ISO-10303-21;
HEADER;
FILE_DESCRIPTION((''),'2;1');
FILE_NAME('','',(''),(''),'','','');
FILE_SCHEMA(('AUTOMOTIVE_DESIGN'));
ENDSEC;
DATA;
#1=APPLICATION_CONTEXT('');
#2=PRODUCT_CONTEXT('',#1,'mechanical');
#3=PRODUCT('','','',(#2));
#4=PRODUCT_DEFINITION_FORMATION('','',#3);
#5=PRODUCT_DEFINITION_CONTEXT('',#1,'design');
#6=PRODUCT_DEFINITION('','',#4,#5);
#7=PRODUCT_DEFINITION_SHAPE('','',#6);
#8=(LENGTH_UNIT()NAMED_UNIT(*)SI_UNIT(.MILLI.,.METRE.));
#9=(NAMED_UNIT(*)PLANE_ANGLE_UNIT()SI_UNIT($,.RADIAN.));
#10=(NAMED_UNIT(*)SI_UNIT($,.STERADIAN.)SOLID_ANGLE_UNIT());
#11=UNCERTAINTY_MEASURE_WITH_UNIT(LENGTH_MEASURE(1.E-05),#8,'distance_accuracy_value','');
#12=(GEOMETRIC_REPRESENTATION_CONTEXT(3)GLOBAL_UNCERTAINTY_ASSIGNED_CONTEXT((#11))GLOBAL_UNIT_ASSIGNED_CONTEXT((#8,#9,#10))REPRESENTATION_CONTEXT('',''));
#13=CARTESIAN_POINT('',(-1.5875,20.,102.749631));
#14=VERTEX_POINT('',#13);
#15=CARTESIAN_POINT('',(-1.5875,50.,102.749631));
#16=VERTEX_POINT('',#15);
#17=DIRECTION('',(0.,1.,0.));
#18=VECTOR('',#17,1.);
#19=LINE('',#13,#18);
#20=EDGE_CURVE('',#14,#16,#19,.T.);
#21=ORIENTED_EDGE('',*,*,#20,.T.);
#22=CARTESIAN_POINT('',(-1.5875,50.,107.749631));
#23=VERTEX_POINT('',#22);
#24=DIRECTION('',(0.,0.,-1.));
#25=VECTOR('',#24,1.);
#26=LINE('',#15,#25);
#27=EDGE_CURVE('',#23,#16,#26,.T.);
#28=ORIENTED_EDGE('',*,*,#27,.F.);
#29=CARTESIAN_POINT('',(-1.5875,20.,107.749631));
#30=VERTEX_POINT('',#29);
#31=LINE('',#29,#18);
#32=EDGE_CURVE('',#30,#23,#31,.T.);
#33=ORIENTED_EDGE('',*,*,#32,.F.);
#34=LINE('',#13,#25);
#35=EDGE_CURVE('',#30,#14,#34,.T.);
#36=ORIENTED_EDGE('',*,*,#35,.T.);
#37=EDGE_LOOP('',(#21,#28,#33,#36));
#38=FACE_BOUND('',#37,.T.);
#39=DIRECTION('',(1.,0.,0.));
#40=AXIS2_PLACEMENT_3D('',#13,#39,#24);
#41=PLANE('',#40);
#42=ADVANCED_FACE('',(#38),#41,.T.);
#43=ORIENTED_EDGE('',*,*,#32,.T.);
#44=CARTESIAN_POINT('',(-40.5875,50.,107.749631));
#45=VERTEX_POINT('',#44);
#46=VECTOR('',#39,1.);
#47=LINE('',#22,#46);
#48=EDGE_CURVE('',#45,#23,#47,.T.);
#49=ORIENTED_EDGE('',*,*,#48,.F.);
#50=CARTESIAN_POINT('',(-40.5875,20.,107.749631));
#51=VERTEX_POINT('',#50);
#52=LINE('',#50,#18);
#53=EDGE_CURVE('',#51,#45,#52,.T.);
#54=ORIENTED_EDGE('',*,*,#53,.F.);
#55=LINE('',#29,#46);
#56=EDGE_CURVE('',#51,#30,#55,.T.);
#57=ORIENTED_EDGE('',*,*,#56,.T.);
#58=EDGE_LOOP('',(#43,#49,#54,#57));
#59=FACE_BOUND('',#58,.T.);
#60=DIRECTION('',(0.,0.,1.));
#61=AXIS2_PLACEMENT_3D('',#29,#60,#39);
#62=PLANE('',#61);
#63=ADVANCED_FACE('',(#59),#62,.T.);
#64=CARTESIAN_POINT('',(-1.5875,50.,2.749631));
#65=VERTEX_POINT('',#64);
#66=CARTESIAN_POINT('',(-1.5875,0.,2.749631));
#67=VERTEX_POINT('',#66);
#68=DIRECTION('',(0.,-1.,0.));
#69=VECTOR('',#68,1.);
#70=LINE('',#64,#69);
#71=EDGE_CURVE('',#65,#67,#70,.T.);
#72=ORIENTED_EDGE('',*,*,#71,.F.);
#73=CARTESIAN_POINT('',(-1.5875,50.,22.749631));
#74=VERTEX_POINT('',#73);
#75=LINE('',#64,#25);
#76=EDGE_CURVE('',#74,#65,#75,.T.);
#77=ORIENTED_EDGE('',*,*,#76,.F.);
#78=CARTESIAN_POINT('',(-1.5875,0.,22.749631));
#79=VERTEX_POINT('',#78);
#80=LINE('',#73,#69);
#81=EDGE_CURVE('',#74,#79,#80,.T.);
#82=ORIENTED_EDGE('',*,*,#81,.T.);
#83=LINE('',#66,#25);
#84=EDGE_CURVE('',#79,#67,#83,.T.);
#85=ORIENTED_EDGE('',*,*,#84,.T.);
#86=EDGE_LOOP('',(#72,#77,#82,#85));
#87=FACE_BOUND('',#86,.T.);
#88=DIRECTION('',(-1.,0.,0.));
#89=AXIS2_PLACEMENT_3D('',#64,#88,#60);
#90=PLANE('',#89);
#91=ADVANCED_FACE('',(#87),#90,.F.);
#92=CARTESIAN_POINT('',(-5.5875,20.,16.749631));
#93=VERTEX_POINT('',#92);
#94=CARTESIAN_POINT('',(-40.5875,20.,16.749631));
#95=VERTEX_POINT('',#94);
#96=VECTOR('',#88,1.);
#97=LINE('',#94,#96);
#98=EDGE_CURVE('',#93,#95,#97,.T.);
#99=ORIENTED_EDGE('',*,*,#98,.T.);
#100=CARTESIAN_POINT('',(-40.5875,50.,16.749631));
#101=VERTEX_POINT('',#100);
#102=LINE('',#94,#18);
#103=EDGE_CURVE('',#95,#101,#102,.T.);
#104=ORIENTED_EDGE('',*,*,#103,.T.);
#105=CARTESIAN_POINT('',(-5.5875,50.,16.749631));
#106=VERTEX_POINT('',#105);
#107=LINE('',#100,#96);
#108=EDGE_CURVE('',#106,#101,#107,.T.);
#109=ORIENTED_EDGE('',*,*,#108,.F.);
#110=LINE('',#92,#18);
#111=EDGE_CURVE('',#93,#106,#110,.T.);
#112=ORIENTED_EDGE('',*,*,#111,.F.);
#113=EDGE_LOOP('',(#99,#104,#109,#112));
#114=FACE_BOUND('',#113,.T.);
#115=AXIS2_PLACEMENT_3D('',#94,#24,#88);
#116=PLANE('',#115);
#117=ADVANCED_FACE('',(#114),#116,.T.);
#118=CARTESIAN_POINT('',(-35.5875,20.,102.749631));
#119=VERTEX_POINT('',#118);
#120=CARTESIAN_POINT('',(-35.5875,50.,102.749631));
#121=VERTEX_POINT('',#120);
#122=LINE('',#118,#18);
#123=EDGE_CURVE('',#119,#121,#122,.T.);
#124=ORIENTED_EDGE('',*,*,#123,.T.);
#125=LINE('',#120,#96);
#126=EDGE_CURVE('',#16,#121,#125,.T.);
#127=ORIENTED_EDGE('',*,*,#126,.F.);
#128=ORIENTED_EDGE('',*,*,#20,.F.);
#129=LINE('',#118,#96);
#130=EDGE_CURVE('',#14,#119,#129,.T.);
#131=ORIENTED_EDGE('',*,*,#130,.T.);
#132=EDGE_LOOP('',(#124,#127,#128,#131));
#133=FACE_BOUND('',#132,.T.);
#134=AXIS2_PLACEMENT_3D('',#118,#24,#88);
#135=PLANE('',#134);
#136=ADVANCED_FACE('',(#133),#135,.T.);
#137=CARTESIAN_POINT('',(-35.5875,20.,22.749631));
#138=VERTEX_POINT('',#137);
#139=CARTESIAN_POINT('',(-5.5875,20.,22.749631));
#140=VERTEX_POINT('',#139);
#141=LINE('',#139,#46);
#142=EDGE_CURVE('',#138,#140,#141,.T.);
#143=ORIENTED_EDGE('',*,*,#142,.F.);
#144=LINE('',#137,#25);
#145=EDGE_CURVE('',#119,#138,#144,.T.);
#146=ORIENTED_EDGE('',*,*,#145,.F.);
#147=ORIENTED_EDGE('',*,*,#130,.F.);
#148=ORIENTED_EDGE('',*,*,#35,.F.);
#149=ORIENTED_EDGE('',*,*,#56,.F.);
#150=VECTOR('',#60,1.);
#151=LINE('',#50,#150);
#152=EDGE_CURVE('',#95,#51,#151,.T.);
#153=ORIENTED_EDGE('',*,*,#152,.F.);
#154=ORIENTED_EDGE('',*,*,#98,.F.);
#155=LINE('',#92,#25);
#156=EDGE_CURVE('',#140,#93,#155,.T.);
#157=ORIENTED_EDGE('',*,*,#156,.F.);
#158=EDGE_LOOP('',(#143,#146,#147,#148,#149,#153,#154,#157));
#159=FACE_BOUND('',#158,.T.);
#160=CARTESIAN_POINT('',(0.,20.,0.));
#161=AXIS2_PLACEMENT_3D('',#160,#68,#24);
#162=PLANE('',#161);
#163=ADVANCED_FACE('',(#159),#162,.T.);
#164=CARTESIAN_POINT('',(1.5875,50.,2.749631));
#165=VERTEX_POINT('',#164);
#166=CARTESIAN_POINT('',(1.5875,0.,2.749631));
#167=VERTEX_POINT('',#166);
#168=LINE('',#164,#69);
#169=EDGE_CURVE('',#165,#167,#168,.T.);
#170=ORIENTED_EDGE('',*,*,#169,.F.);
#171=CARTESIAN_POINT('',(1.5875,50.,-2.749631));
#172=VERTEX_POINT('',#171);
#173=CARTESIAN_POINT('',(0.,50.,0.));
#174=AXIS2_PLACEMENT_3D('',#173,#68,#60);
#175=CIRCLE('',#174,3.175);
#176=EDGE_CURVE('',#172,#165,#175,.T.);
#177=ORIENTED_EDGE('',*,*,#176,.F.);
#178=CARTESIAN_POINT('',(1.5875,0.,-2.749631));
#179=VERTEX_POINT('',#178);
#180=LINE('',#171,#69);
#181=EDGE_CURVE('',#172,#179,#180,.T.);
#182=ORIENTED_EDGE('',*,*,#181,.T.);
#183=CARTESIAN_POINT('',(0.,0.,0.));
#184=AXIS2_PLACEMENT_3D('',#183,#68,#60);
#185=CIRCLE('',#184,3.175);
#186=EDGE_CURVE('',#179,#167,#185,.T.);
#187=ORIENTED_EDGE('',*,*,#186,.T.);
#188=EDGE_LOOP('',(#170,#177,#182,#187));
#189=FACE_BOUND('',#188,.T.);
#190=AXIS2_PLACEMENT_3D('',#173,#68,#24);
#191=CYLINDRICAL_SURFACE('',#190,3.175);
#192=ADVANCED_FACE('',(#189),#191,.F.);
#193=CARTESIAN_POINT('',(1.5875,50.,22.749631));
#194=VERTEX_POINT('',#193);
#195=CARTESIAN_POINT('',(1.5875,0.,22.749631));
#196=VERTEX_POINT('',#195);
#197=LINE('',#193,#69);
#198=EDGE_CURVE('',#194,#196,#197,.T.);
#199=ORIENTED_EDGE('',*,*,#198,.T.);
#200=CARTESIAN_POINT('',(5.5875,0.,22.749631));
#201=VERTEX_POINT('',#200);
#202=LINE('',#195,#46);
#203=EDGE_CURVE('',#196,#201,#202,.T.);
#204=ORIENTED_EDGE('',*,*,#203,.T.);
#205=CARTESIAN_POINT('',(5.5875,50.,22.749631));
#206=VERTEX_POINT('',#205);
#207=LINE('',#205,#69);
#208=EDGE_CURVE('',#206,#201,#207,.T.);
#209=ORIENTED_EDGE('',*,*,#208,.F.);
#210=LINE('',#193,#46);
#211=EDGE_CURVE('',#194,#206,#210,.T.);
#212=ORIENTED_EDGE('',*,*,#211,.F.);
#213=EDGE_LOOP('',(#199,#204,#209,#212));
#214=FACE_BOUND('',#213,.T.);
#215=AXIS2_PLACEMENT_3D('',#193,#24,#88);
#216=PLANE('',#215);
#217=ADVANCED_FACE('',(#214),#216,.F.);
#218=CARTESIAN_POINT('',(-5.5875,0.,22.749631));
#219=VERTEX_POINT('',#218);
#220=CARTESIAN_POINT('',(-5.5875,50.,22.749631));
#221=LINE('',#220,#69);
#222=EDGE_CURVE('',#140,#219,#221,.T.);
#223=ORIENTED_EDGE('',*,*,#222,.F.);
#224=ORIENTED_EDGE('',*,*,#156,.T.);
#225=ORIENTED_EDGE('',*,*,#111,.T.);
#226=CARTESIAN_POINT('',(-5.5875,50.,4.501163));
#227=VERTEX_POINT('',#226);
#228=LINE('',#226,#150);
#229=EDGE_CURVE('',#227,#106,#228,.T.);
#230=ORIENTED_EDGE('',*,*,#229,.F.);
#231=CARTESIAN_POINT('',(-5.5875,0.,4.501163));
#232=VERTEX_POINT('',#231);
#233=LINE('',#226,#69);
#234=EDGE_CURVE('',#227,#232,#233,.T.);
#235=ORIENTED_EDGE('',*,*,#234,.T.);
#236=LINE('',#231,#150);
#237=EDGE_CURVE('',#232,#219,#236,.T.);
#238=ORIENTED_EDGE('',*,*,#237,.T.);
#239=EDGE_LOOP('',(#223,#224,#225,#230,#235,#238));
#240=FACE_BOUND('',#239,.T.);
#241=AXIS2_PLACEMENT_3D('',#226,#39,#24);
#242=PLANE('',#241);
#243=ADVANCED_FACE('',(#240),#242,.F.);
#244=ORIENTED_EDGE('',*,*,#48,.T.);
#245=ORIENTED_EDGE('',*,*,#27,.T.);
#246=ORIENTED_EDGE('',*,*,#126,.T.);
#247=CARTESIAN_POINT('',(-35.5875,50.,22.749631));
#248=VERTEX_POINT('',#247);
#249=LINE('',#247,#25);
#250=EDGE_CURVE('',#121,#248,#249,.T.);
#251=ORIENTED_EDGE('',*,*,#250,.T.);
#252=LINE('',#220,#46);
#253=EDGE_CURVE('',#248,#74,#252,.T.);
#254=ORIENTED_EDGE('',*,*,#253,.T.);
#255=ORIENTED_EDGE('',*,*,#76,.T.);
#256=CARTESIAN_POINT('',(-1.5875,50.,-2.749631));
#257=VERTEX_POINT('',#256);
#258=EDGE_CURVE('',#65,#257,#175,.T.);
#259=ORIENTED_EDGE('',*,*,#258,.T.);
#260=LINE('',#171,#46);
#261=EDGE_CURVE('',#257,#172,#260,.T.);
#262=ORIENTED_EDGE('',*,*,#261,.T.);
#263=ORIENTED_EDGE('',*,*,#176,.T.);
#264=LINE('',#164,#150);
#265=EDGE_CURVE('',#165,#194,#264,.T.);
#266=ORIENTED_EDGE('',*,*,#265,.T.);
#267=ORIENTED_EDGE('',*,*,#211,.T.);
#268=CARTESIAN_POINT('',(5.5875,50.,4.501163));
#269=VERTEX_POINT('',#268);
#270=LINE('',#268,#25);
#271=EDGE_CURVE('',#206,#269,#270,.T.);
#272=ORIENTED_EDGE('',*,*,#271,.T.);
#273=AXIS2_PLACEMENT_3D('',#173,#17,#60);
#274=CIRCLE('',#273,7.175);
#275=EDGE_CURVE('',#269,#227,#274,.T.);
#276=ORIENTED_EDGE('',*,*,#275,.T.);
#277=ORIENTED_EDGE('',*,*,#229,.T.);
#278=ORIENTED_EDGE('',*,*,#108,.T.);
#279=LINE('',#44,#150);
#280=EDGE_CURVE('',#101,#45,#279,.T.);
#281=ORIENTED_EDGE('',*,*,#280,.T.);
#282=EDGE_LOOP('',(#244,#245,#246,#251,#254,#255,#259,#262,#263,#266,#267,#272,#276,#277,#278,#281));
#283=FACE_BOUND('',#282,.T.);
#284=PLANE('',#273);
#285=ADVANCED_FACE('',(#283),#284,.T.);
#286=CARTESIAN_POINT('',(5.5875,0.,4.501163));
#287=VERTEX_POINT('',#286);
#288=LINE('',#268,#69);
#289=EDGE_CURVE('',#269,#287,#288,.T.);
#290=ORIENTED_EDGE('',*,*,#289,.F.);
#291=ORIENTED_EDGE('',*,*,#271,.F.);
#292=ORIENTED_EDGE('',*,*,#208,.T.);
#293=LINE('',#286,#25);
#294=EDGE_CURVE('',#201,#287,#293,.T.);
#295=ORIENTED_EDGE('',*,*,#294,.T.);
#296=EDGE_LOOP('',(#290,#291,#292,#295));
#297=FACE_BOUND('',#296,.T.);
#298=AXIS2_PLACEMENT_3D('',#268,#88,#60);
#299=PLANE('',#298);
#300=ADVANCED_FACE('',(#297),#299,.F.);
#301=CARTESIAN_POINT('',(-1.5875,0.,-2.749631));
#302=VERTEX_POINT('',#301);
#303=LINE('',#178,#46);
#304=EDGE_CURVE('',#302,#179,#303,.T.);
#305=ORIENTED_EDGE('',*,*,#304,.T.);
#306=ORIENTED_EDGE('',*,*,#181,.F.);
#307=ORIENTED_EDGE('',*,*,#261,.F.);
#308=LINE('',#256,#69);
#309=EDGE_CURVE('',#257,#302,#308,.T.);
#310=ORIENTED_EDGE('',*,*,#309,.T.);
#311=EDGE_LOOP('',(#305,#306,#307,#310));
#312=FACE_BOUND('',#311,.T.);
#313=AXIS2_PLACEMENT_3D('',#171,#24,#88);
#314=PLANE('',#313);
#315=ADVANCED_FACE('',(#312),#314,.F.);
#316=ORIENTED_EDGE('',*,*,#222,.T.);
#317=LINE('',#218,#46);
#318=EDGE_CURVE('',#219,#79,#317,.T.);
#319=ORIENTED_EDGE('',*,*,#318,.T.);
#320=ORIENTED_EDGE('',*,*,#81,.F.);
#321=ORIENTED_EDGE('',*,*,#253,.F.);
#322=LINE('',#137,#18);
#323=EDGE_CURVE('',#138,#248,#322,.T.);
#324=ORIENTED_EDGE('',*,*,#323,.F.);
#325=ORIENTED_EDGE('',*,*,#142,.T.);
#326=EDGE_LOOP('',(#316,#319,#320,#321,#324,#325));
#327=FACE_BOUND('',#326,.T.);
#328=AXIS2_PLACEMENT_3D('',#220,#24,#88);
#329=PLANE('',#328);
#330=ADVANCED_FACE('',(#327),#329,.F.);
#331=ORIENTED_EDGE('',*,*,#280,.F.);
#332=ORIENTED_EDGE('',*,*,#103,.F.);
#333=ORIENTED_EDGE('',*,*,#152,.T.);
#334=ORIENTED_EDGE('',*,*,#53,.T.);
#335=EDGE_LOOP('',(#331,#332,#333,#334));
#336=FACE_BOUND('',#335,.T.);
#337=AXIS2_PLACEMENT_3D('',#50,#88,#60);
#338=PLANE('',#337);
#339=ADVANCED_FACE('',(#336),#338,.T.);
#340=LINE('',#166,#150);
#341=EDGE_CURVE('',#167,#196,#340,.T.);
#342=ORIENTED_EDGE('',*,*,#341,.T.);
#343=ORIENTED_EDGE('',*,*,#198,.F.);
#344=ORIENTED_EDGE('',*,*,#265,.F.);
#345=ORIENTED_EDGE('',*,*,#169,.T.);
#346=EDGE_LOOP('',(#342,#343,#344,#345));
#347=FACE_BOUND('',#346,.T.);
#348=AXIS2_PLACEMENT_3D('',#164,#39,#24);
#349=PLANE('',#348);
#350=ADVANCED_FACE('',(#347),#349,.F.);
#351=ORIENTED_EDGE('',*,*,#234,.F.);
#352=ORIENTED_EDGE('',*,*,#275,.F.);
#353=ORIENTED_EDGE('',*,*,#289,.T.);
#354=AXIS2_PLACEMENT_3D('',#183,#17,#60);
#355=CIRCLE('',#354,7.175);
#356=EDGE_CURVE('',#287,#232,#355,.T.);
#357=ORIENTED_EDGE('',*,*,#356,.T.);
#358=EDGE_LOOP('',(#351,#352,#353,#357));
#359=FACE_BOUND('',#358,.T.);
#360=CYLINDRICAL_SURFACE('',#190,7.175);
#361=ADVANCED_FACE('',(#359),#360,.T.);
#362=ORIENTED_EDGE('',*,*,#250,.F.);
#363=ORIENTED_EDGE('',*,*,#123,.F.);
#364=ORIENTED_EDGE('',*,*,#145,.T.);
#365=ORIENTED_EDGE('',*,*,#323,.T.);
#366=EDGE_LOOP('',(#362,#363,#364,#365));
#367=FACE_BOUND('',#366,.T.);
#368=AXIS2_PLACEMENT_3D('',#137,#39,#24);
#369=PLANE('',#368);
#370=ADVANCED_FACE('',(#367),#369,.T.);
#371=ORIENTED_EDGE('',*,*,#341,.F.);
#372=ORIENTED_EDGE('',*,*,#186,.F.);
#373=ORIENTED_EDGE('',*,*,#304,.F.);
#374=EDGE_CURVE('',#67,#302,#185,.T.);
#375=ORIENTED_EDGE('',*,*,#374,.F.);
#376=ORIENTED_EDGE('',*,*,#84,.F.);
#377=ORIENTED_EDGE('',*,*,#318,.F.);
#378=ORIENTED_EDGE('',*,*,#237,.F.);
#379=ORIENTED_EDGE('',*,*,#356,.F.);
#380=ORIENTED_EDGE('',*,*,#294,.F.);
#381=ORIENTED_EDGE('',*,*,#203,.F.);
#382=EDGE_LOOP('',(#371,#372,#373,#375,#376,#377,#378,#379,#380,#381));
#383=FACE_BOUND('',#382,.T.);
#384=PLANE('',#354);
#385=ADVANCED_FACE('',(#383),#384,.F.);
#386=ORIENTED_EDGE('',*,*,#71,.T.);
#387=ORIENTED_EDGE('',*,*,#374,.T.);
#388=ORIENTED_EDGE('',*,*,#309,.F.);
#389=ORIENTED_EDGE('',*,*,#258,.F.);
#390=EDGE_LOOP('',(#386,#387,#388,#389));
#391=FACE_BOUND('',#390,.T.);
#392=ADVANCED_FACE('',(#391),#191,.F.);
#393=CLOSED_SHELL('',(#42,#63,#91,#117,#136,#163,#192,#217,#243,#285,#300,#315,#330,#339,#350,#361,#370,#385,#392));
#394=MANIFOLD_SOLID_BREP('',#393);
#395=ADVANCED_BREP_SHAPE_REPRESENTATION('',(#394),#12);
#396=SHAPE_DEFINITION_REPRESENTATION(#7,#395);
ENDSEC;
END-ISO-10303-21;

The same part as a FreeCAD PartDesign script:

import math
import FreeCAD as App
import Part
import Sketcher
from FreeCAD import Vector

doc = App.newDocument("Part")
body = doc.addObject("PartDesign::Body", "Body")

sketch1 = body.newObject("Sketcher::SketchObject", "Sketch")
sketch1.AttachmentSupport = (doc.getObject("XZ_Plane"), [""])
sketch1.MapMode = "FlatFace"
sketch1.addGeometry(Part.LineSegment(Vector(-1.6, 22.7, 0), Vector(-1.6, 2.7, 0)), False)
sketch1.addGeometry(Part.ArcOfCircle(Part.Circle(Vector(0, 0, 0), Vector(0, 0, 1), 3.2), math.radians(120), math.radians(240)), False)
sketch1.addGeometry(Part.LineSegment(Vector(-1.6, -2.7, 0), Vector(1.6, -2.7, 0)), False)
sketch1.addGeometry(Part.ArcOfCircle(Part.Circle(Vector(0, 0, 0), Vector(0, 0, 1), 3.2), math.radians(-60), math.radians(60)), False)
sketch1.addGeometry(Part.LineSegment(Vector(1.6, 2.7, 0), Vector(1.6, 22.7, 0)), False)
sketch1.addGeometry(Part.LineSegment(Vector(1.6, 22.7, 0), Vector(5.6, 22.7, 0)), False)
sketch1.addGeometry(Part.LineSegment(Vector(5.6, 22.7, 0), Vector(5.6, 4.5, 0)), False)
sketch1.addGeometry(Part.ArcOfCircle(Part.Circle(Vector(0, 0, 0), Vector(0, 0, 1), 7.2), math.radians(141), math.radians(399)), False)
sketch1.addGeometry(Part.LineSegment(Vector(-5.6, 4.5, 0), Vector(-5.6, 22.7, 0)), False)
sketch1.addGeometry(Part.LineSegment(Vector(-5.6, 22.7, 0), Vector(-1.6, 22.7, 0)), False)
sketch1.addConstraint(Sketcher.Constraint("Coincident", 0, 2, 1, 1))
sketch1.addConstraint(Sketcher.Constraint("Coincident", 1, 2, 2, 1))
sketch1.addConstraint(Sketcher.Constraint("Coincident", 2, 2, 3, 1))
sketch1.addConstraint(Sketcher.Constraint("Coincident", 3, 2, 4, 1))
sketch1.addConstraint(Sketcher.Constraint("Coincident", 4, 2, 5, 1))
sketch1.addConstraint(Sketcher.Constraint("Coincident", 5, 2, 6, 1))
sketch1.addConstraint(Sketcher.Constraint("Coincident", 6, 2, 7, 2))
sketch1.addConstraint(Sketcher.Constraint("Coincident", 7, 1, 8, 1))
sketch1.addConstraint(Sketcher.Constraint("Coincident", 8, 2, 9, 1))
sketch1.addConstraint(Sketcher.Constraint("Coincident", 9, 2, 0, 1))
sketch1.addConstraint(Sketcher.Constraint("Vertical", 0))
sketch1.addConstraint(Sketcher.Constraint("Horizontal", 2))
sketch1.addConstraint(Sketcher.Constraint("Vertical", 4))
sketch1.addConstraint(Sketcher.Constraint("Horizontal", 5))
sketch1.addConstraint(Sketcher.Constraint("Vertical", 6))
sketch1.addConstraint(Sketcher.Constraint("Vertical", 8))
sketch1.addConstraint(Sketcher.Constraint("Horizontal", 9))
sketch1.addConstraint(Sketcher.Constraint("Coincident", 1, 3, -1, 1))
sketch1.addConstraint(Sketcher.Constraint("Coincident", 3, 3, -1, 1))
sketch1.addConstraint(Sketcher.Constraint("Coincident", 7, 3, -1, 1))
sketch1.addConstraint(Sketcher.Constraint("Equal", 1, 3))
sketch1.addConstraint(Sketcher.Constraint("Symmetric", 5, 2, 8, 2, -2))
sketch1.addConstraint(Sketcher.Constraint("Horizontal", 0, 2, 3, 2))
sketch1.addConstraint(Sketcher.Constraint("Vertical", 0, 2, 1, 2))
sketch1.addConstraint(Sketcher.Constraint("DistanceX", 5, 1, 5, 2, 4.0))
sketch1.addConstraint(Sketcher.Constraint("DistanceY", 0, 2, 0, 1, 20.0))
sketch1.addConstraint(Sketcher.Constraint("Radius", 1, 3.175))
sketch1.addConstraint(Sketcher.Constraint("Radius", 7, 7.175))
sketch1.addConstraint(Sketcher.Constraint("DistanceX", 2, 1, 2, 2, 3.175))
pad1 = body.newObject("PartDesign::Pad", "Pad")
pad1.Profile = sketch1
pad1.Length = 50
pad1.Reversed = True

sketch2 = body.newObject("Sketcher::SketchObject", "Sketch001")
sketch2.AttachmentSupport = (doc.getObject("XZ_Plane"), [""])
sketch2.MapMode = "FlatFace"
sketch2.AttachmentOffset = App.Placement(Vector(0, 0, -50), App.Rotation())
sketch2.addGeometry(Part.LineSegment(Vector(-36, 23, 0), Vector(-6, 23, 0)), False)
sketch2.addGeometry(Part.LineSegment(Vector(-6, 23, 0), Vector(-6, 17, 0)), False)
sketch2.addGeometry(Part.LineSegment(Vector(-6, 17, 0), Vector(-41, 17, 0)), False)
sketch2.addGeometry(Part.LineSegment(Vector(-41, 17, 0), Vector(-41, 108, 0)), False)
sketch2.addGeometry(Part.LineSegment(Vector(-41, 108, 0), Vector(-2, 108, 0)), False)
sketch2.addGeometry(Part.LineSegment(Vector(-2, 108, 0), Vector(-2, 103, 0)), False)
sketch2.addGeometry(Part.LineSegment(Vector(-2, 103, 0), Vector(-36, 103, 0)), False)
sketch2.addGeometry(Part.LineSegment(Vector(-36, 103, 0), Vector(-36, 23, 0)), False)
sketch2.addConstraint(Sketcher.Constraint("Coincident", 0, 2, 1, 1))
sketch2.addConstraint(Sketcher.Constraint("Coincident", 1, 2, 2, 1))
sketch2.addConstraint(Sketcher.Constraint("Coincident", 2, 2, 3, 1))
sketch2.addConstraint(Sketcher.Constraint("Coincident", 3, 2, 4, 1))
sketch2.addConstraint(Sketcher.Constraint("Coincident", 4, 2, 5, 1))
sketch2.addConstraint(Sketcher.Constraint("Coincident", 5, 2, 6, 1))
sketch2.addConstraint(Sketcher.Constraint("Coincident", 6, 2, 7, 1))
sketch2.addConstraint(Sketcher.Constraint("Coincident", 7, 2, 0, 1))
sketch2.addConstraint(Sketcher.Constraint("Horizontal", 0))
sketch2.addConstraint(Sketcher.Constraint("Vertical", 1))
sketch2.addConstraint(Sketcher.Constraint("Horizontal", 2))
sketch2.addConstraint(Sketcher.Constraint("Vertical", 3))
sketch2.addConstraint(Sketcher.Constraint("Horizontal", 4))
sketch2.addConstraint(Sketcher.Constraint("Vertical", 5))
sketch2.addConstraint(Sketcher.Constraint("Horizontal", 6))
sketch2.addConstraint(Sketcher.Constraint("Vertical", 7))
sketch2.addConstraint(Sketcher.Constraint("DistanceX", 0, 1, 0, 2, 30.0))
sketch2.addConstraint(Sketcher.Constraint("DistanceX", 2, 2, 2, 1, 35.0))
sketch2.addConstraint(Sketcher.Constraint("DistanceX", 4, 1, 4, 2, 39.0))
sketch2.addConstraint(Sketcher.Constraint("DistanceY", 1, 2, 1, 1, 6.0))
sketch2.addConstraint(Sketcher.Constraint("DistanceY", 3, 1, 3, 2, 91.0))
sketch2.addConstraint(Sketcher.Constraint("DistanceY", 5, 2, 5, 1, 5.0))
sketch2.addConstraint(Sketcher.Constraint("DistanceX", 0, 2, -1, 1, 5.5875))
sketch2.addConstraint(Sketcher.Constraint("DistanceY", -1, 1, 0, 2, 22.749631))
pad2 = body.newObject("PartDesign::Pad", "Pad001")
pad2.Profile = sketch2
pad2.Length = 30

doc.recompute()
